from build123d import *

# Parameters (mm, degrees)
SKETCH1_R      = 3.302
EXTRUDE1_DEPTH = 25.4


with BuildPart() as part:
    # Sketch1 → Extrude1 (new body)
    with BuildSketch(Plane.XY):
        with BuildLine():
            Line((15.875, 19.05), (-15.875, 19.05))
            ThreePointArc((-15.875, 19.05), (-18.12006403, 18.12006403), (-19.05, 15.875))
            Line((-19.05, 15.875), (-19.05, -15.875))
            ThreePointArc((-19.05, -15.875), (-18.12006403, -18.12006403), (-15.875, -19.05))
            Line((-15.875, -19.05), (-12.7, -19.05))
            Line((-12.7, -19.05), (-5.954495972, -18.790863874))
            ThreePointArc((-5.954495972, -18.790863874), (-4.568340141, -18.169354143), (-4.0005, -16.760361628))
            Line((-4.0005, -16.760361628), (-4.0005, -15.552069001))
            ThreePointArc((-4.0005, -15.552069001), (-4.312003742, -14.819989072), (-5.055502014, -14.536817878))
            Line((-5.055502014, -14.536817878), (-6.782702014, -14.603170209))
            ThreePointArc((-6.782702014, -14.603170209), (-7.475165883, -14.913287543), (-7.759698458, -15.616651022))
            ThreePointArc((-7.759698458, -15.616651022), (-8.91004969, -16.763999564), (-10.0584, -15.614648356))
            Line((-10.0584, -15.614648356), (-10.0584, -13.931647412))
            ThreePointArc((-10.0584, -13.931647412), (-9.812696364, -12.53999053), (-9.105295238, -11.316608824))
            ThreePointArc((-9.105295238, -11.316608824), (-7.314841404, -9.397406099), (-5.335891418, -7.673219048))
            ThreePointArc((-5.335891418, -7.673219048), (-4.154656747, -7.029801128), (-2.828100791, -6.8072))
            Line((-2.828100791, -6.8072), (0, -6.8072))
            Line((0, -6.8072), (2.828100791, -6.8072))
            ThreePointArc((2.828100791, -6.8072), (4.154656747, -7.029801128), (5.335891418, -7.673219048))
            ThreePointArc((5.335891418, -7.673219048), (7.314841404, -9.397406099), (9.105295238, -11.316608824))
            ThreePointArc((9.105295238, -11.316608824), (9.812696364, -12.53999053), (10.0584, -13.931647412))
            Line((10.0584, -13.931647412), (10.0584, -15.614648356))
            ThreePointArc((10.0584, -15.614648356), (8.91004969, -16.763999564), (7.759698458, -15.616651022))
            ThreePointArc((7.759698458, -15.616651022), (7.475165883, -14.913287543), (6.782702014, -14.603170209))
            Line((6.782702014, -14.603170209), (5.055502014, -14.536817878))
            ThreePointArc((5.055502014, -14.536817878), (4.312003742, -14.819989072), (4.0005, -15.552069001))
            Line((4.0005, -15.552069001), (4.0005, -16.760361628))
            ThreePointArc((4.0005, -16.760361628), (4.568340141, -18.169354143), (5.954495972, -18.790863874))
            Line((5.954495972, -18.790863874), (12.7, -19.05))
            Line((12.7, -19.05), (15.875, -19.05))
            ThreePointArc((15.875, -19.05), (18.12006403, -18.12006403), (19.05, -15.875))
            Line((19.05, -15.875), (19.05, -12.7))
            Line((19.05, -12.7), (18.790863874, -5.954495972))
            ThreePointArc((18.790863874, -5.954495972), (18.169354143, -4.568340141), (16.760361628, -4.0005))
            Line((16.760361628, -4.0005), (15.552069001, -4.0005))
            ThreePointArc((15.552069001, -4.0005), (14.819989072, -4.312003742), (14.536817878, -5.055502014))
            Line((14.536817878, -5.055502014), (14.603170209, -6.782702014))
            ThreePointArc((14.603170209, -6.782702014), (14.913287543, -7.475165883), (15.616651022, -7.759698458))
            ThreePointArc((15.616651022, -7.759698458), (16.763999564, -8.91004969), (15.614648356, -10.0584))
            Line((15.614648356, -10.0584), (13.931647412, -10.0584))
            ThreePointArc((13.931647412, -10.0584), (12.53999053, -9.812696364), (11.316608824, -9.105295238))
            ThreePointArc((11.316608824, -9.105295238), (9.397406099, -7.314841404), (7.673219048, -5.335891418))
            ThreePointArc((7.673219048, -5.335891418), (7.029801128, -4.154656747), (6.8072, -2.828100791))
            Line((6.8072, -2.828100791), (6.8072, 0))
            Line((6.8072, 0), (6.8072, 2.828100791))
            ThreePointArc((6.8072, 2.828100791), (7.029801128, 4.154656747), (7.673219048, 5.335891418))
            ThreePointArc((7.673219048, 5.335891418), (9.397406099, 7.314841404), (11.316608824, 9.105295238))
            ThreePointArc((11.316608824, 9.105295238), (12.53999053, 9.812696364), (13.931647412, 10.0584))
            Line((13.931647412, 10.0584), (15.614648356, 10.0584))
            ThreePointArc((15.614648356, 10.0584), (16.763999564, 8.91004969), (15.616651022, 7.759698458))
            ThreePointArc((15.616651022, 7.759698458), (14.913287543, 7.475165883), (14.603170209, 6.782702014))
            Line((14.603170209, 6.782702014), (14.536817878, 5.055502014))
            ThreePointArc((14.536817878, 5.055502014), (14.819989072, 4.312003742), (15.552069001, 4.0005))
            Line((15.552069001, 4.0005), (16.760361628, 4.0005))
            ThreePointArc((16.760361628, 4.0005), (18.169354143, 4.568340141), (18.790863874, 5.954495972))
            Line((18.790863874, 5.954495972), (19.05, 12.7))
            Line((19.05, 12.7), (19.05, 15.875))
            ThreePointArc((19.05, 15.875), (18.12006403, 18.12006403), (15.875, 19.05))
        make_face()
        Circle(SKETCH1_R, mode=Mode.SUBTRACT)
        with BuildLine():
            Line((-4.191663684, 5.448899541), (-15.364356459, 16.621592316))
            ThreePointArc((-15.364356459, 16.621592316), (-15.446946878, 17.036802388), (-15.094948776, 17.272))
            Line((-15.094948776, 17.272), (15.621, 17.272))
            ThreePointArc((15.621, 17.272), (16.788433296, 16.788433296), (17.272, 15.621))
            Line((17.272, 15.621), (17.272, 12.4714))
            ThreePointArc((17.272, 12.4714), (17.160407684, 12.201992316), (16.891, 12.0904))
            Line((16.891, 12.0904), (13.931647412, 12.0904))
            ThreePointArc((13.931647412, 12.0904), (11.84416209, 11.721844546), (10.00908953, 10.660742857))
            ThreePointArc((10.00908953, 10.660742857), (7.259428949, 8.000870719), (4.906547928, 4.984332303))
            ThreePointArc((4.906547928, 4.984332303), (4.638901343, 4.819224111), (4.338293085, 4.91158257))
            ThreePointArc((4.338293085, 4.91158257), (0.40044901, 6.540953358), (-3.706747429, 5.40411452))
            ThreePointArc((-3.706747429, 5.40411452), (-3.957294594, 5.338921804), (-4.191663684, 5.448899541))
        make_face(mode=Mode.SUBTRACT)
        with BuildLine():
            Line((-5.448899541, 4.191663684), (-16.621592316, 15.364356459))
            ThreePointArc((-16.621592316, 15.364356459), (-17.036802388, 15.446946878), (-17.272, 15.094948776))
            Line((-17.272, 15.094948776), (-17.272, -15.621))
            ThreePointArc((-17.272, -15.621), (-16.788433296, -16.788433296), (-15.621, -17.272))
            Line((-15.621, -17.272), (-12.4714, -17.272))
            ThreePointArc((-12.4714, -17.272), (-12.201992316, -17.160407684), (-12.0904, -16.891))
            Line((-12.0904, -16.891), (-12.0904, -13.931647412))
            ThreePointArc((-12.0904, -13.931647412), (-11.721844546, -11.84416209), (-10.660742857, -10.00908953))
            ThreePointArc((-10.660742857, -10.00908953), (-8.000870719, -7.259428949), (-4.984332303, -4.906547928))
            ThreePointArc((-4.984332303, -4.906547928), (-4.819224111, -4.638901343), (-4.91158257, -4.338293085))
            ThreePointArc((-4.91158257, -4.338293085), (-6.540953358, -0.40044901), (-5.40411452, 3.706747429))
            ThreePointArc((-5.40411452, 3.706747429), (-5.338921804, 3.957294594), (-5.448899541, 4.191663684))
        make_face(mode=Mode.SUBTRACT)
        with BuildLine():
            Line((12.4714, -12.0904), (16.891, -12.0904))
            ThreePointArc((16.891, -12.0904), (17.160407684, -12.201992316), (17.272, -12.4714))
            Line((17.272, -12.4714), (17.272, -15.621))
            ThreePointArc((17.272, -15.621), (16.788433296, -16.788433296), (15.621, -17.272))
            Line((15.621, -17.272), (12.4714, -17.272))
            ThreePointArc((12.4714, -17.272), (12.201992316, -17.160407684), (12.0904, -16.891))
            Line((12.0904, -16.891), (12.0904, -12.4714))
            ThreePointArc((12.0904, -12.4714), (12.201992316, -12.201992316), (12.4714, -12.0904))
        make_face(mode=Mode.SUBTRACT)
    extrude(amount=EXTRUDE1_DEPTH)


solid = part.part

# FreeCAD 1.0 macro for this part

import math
import FreeCAD as App
import Part
import Sketcher
from FreeCAD import Vector
Q = App.Units.Quantity

doc = App.newDocument("Part")
params = doc.addObject("Spreadsheet::Sheet", "Params")
for row, (alias, value) in enumerate([
    ("sketch1_radius", "1 in"),
    ("sketch1_diameter", "0.26 in"),
    ("sketch1_radius2", "0.08 in"),
    ("sketch1_radius3", "0.04 in"),
    ("sketch1_radius4", "0.16 in"),
    ("pad1_length", "1 in"),
], start=1):
    params.set(f"A{row}", alias)
    params.set(f"B{row}", "=" + value)
    params.setAlias(f"B{row}", alias)

body = doc.addObject("PartDesign::Body", "Body")

sketch1 = body.newObject("Sketcher::SketchObject", "Sketch")
sketch1.AttachmentSupport = (doc.getObject("XY_Plane"), [""])
sketch1.MapMode = "FlatFace"
sketch1.addGeometry([
    Part.LineSegment(Vector(15.88, 19.05, 0), Vector(-15.88, 19.05, 0)),
    Part.ArcOfCircle(Part.Circle(Vector(-15.87, 15.87, 0), Vector(0, 0, 1), 3.18), math.radians(90), math.radians(180)),
    Part.LineSegment(Vector(-19.05, 15.88, 0), Vector(-19.05, -15.88, 0)),
    Part.ArcOfCircle(Part.Circle(Vector(-15.87, -15.87, 0), Vector(0, 0, 1), 3.18), math.radians(-180), math.radians(-90)),
    Part.LineSegment(Vector(-15.88, -19.05, 0), Vector(-12.7, -19.05, 0)),
    Part.LineSegment(Vector(-12.7, -19.05, 0), Vector(-5.95, -18.79, 0)),
    Part.ArcOfCircle(Part.Circle(Vector(-6.03, -16.76, 0), Vector(0, 0, 1), 2.03), math.radians(-88), math.radians(0)),
    Part.LineSegment(Vector(-4, -16.76, 0), Vector(-4, -15.55, 0)),
    Part.ArcOfCircle(Part.Circle(Vector(-5.02, -15.55, 0), Vector(0, 0, 1), 1.02), math.radians(0), math.radians(92)),
    Part.LineSegment(Vector(-5.06, -14.54, 0), Vector(-6.78, -14.6, 0)),
    Part.ArcOfCircle(Part.Circle(Vector(-6.74, -15.62, 0), Vector(0, 0, 1), 1.02), math.radians(92), math.radians(180)),
    Part.ArcOfCircle(Part.Circle(Vector(-8.91, -15.61, 0), Vector(0, 0, 1), 1.15), math.radians(180), math.radians(360)),
    Part.LineSegment(Vector(-10.06, -15.61, 0), Vector(-10.06, -13.93, 0)),
    Part.ArcOfCircle(Part.Circle(Vector(-5.99, -13.93, 0), Vector(0, 0, 1), 4.06), math.radians(140), math.radians(180)),
    Part.ArcOfCircle(Part.Circle(Vector(10.34, -27.66, 0), Vector(0, 0, 1), 25.4), math.radians(128.1), math.radians(139.95)),
    Part.ArcOfCircle(Part.Circle(Vector(-2.83, -10.87, 0), Vector(0, 0, 1), 4.06), math.radians(90), math.radians(128)),
    Part.LineSegment(Vector(-2.83, -6.81, 0), Vector(2.83, -6.81, 0)),
    Part.ArcOfCircle(Part.Circle(Vector(2.83, -10.87, 0), Vector(0, 0, 1), 4.06), math.radians(52), math.radians(90)),
    Part.ArcOfCircle(Part.Circle(Vector(-10.34, -27.66, 0), Vector(0, 0, 1), 25.4), math.radians(40.05), math.radians(51.9)),
    Part.ArcOfCircle(Part.Circle(Vector(5.99, -13.93, 0), Vector(0, 0, 1), 4.06), math.radians(0), math.radians(40)),
    Part.LineSegment(Vector(10.06, -13.93, 0), Vector(10.06, -15.61, 0)),
    Part.ArcOfCircle(Part.Circle(Vector(8.91, -15.61, 0), Vector(0, 0, 1), 1.15), math.radians(-180), math.radians(0)),
    Part.ArcOfCircle(Part.Circle(Vector(6.74, -15.62, 0), Vector(0, 0, 1), 1.02), math.radians(0), math.radians(88)),
    Part.LineSegment(Vector(6.78, -14.6, 0), Vector(5.06, -14.54, 0)),
    Part.ArcOfCircle(Part.Circle(Vector(5.02, -15.55, 0), Vector(0, 0, 1), 1.02), math.radians(88), math.radians(180)),
    Part.LineSegment(Vector(4, -15.55, 0), Vector(4, -16.76, 0)),
    Part.ArcOfCircle(Part.Circle(Vector(6.03, -16.76, 0), Vector(0, 0, 1), 2.03), math.radians(180), math.radians(268)),
    Part.LineSegment(Vector(5.95, -18.79, 0), Vector(12.7, -19.05, 0)),
    Part.LineSegment(Vector(12.7, -19.05, 0), Vector(15.88, -19.05, 0)),
    Part.ArcOfCircle(Part.Circle(Vector(15.87, -15.87, 0), Vector(0, 0, 1), 3.18), math.radians(-90), math.radians(0)),
    Part.LineSegment(Vector(19.05, -15.88, 0), Vector(19.05, -12.7, 0)),
    Part.LineSegment(Vector(19.05, -12.7, 0), Vector(18.79, -5.95, 0)),
    Part.ArcOfCircle(Part.Circle(Vector(16.76, -6.03, 0), Vector(0, 0, 1), 2.03), math.radians(2), math.radians(90)),
    Part.LineSegment(Vector(16.76, -4, 0), Vector(15.55, -4, 0)),
    Part.ArcOfCircle(Part.Circle(Vector(15.55, -5.02, 0), Vector(0, 0, 1), 1.02), math.radians(90), math.radians(182)),
    Part.LineSegment(Vector(14.54, -5.06, 0), Vector(14.6, -6.78, 0)),
    Part.ArcOfCircle(Part.Circle(Vector(15.62, -6.74, 0), Vector(0, 0, 1), 1.02), math.radians(-178), math.radians(-90)),
    Part.ArcOfCircle(Part.Circle(Vector(15.61, -8.91, 0), Vector(0, 0, 1), 1.15), math.radians(-90), math.radians(90)),
    Part.LineSegment(Vector(15.61, -10.06, 0), Vector(13.93, -10.06, 0)),
    Part.ArcOfCircle(Part.Circle(Vector(13.93, -5.99, 0), Vector(0, 0, 1), 4.06), math.radians(-130), math.radians(-90)),
    Part.ArcOfCircle(Part.Circle(Vector(27.66, 10.34, 0), Vector(0, 0, 1), 25.4), math.radians(-141.9), math.radians(-130.05)),
    Part.ArcOfCircle(Part.Circle(Vector(10.87, -2.83, 0), Vector(0, 0, 1), 4.06), math.radians(-180), math.radians(-142)),
    Part.LineSegment(Vector(6.81, -2.83, 0), Vector(6.81, 2.83, 0)),
    Part.ArcOfCircle(Part.Circle(Vector(10.87, 2.83, 0), Vector(0, 0, 1), 4.06), math.radians(142), math.radians(180)),
    Part.ArcOfCircle(Part.Circle(Vector(27.66, -10.34, 0), Vector(0, 0, 1), 25.4), math.radians(130.05), math.radians(141.9)),
    Part.ArcOfCircle(Part.Circle(Vector(13.93, 5.99, 0), Vector(0, 0, 1), 4.06), math.radians(90), math.radians(130)),
    Part.LineSegment(Vector(13.93, 10.06, 0), Vector(15.61, 10.06, 0)),
    Part.ArcOfCircle(Part.Circle(Vector(15.61, 8.91, 0), Vector(0, 0, 1), 1.15), math.radians(-90), math.radians(90)),
    Part.ArcOfCircle(Part.Circle(Vector(15.62, 6.74, 0), Vector(0, 0, 1), 1.02), math.radians(90), math.radians(178)),
    Part.LineSegment(Vector(14.6, 6.78, 0), Vector(14.54, 5.06, 0)),
    Part.ArcOfCircle(Part.Circle(Vector(15.55, 5.02, 0), Vector(0, 0, 1), 1.02), math.radians(178), math.radians(270)),
    Part.LineSegment(Vector(15.55, 4, 0), Vector(16.76, 4, 0)),
    Part.ArcOfCircle(Part.Circle(Vector(16.76, 6.03, 0), Vector(0, 0, 1), 2.03), math.radians(-90), math.radians(-2)),
    Part.LineSegment(Vector(18.79, 5.95, 0), Vector(19.05, 12.7, 0)),
    Part.LineSegment(Vector(19.05, 12.7, 0), Vector(19.05, 15.88, 0)),
    Part.ArcOfCircle(Part.Circle(Vector(15.87, 15.87, 0), Vector(0, 0, 1), 3.18), math.radians(0), math.radians(90)),
    Part.LineSegment(Vector(-16.62, 15.36, 0), Vector(-5.45, 4.19, 0)),
    Part.ArcOfCircle(Part.Circle(Vector(-5.72, 3.92, 0), Vector(0, 0, 1), 0.38), math.radians(-34), math.radians(45)),
    Part.ArcOfCircle(Part.Circle(Vector(0, 0, 0), Vector(0, 0, 1), 6.55), math.radians(146), math.radians(221)),
    Part.ArcOfCircle(Part.Circle(Vector(-5.2, -4.59, 0), Vector(0, 0, 1), 0.38), math.radians(-56), math.radians(41)),
    Part.ArcOfCircle(Part.Circle(Vector(10.34, -27.66, 0), Vector(0, 0, 1), 27.43), math.radians(123.96), math.radians(139.95)),
    Part.ArcOfCircle(Part.Circle(Vector(-5.99, -13.93, 0), Vector(0, 0, 1), 6.1), math.radians(140), math.radians(180)),
    Part.LineSegment(Vector(-12.09, -13.93, 0), Vector(-12.09, -16.89, 0)),
    Part.ArcOfCircle(Part.Circle(Vector(-12.47, -16.89, 0), Vector(0, 0, 1), 0.38), math.radians(-90), math.radians(0)),
    Part.LineSegment(Vector(-12.47, -17.27, 0), Vector(-15.62, -17.27, 0)),
    Part.ArcOfCircle(Part.Circle(Vector(-15.62, -15.62, 0), Vector(0, 0, 1), 1.65), math.radians(180), math.radians(270)),
    Part.LineSegment(Vector(-17.27, -15.62, 0), Vector(-17.27, 15.09, 0)),
    Part.ArcOfCircle(Part.Circle(Vector(-16.89, 15.09, 0), Vector(0, 0, 1), 0.38), math.radians(45), math.radians(180)),
    Part.ArcOfCircle(Part.Circle(Vector(12.47, -12.47, 0), Vector(0, 0, 1), 0.38), math.radians(90), math.radians(180)),
    Part.LineSegment(Vector(12.47, -12.09, 0), Vector(16.89, -12.09, 0)),
    Part.ArcOfCircle(Part.Circle(Vector(16.89, -12.47, 0), Vector(0, 0, 1), 0.38), math.radians(0), math.radians(90)),
    Part.LineSegment(Vector(17.27, -12.47, 0), Vector(17.27, -15.62, 0)),
    Part.ArcOfCircle(Part.Circle(Vector(15.62, -15.62, 0), Vector(0, 0, 1), 1.65), math.radians(-90), math.radians(0)),
    Part.LineSegment(Vector(15.62, -17.27, 0), Vector(12.47, -17.27, 0)),
    Part.ArcOfCircle(Part.Circle(Vector(12.47, -16.89, 0), Vector(0, 0, 1), 0.38), math.radians(180), math.radians(270)),
    Part.LineSegment(Vector(12.09, -16.89, 0), Vector(12.09, -12.47, 0)),
    Part.Circle(Vector(0, 0, 0), Vector(0, 0, 1), 3.3),
    Part.ArcOfCircle(Part.Circle(Vector(-3.92, 5.72, 0), Vector(0, 0, 1), 0.38), math.radians(-135), math.radians(-56)),
    Part.LineSegment(Vector(-4.19, 5.45, 0), Vector(-15.36, 16.62, 0)),
    Part.ArcOfCircle(Part.Circle(Vector(-15.09, 16.89, 0), Vector(0, 0, 1), 0.38), math.radians(90), math.radians(225)),
    Part.LineSegment(Vector(-15.09, 17.27, 0), Vector(15.62, 17.27, 0)),
    Part.ArcOfCircle(Part.Circle(Vector(15.62, 15.62, 0), Vector(0, 0, 1), 1.65), math.radians(0), math.radians(90)),
    Part.LineSegment(Vector(17.27, 15.62, 0), Vector(17.27, 12.47, 0)),
    Part.ArcOfCircle(Part.Circle(Vector(16.89, 12.47, 0), Vector(0, 0, 1), 0.38), math.radians(-90), math.radians(0)),
    Part.LineSegment(Vector(16.89, 12.09, 0), Vector(13.93, 12.09, 0)),
    Part.ArcOfCircle(Part.Circle(Vector(13.93, 5.99, 0), Vector(0, 0, 1), 6.1), math.radians(90), math.radians(130)),
    Part.ArcOfCircle(Part.Circle(Vector(27.66, -10.34, 0), Vector(0, 0, 1), 27.43), math.radians(130.05), math.radians(146.04)),
    Part.ArcOfCircle(Part.Circle(Vector(4.59, 5.2, 0), Vector(0, 0, 1), 0.38), math.radians(-131), math.radians(-34)),
    Part.ArcOfCircle(Part.Circle(Vector(0, 0, 0), Vector(0, 0, 1), 6.55), math.radians(49), math.radians(124)),
], False)
sketch1.addConstraint([
    Sketcher.Constraint("Tangent", 0, 2, 1, 1),
    Sketcher.Constraint("Tangent", 1, 2, 2, 1),
    Sketcher.Constraint("Tangent", 2, 2, 3, 1),
    Sketcher.Constraint("Tangent", 3, 2, 4, 1),
    Sketcher.Constraint("Coincident", 4, 2, 5, 1),
    Sketcher.Constraint("Tangent", 5, 2, 6, 1),
    Sketcher.Constraint("Tangent", 6, 2, 7, 1),
    Sketcher.Constraint("Tangent", 7, 2, 8, 1),
    Sketcher.Constraint("Tangent", 8, 2, 9, 1),
    Sketcher.Constraint("Tangent", 9, 2, 10, 1),
    Sketcher.Constraint("Tangent", 10, 2, 11, 2),
    Sketcher.Constraint("Tangent", 11, 1, 12, 1),
    Sketcher.Constraint("Tangent", 12, 2, 13, 2),
    Sketcher.Constraint("Tangent", 13, 1, 14, 2),
    Sketcher.Constraint("Tangent", 14, 1, 15, 2),
    Sketcher.Constraint("Tangent", 15, 1, 16, 1),
    Sketcher.Constraint("Tangent", 16, 2, 17, 2),
    Sketcher.Constraint("Tangent", 17, 1, 18, 2),
    Sketcher.Constraint("Tangent", 18, 1, 19, 2),
    Sketcher.Constraint("Tangent", 19, 1, 20, 1),
    Sketcher.Constraint("Tangent", 20, 2, 21, 2),
    Sketcher.Constraint("Tangent", 21, 1, 22, 1),
    Sketcher.Constraint("Tangent", 22, 2, 23, 1),
    Sketcher.Constraint("Tangent", 23, 2, 24, 1),
    Sketcher.Constraint("Tangent", 24, 2, 25, 1),
    Sketcher.Constraint("Tangent", 25, 2, 26, 1),
    Sketcher.Constraint("Tangent", 26, 2, 27, 1),
    Sketcher.Constraint("Coincident", 27, 2, 28, 1),
    Sketcher.Constraint("Tangent", 28, 2, 29, 1),
    Sketcher.Constraint("Tangent", 29, 2, 30, 1),
    Sketcher.Constraint("Coincident", 30, 2, 31, 1),
    Sketcher.Constraint("Tangent", 31, 2, 32, 1),
    Sketcher.Constraint("Tangent", 32, 2, 33, 1),
    Sketcher.Constraint("Tangent", 33, 2, 34, 1),
    Sketcher.Constraint("Tangent", 34, 2, 35, 1),
    Sketcher.Constraint("Tangent", 35, 2, 36, 1),
    Sketcher.Constraint("Tangent", 36, 2, 37, 2),
    Sketcher.Constraint("Tangent", 37, 1, 38, 1),
    Sketcher.Constraint("Tangent", 38, 2, 39, 2),
    Sketcher.Constraint("Tangent", 39, 1, 40, 2),
    Sketcher.Constraint("Tangent", 40, 1, 41, 2),
    Sketcher.Constraint("Tangent", 41, 1, 42, 1),
    Sketcher.Constraint("Tangent", 42, 2, 43, 2),
    Sketcher.Constraint("Tangent", 43, 1, 44, 2),
    Sketcher.Constraint("Tangent", 44, 1, 45, 2),
    Sketcher.Constraint("Tangent", 45, 1, 46, 1),
    Sketcher.Constraint("Tangent", 46, 2, 47, 2),
    Sketcher.Constraint("Tangent", 47, 1, 48, 1),
    Sketcher.Constraint("Tangent", 48, 2, 49, 1),
    Sketcher.Constraint("Tangent", 49, 2, 50, 1),
    Sketcher.Constraint("Tangent", 50, 2, 51, 1),
    Sketcher.Constraint("Tangent", 51, 2, 52, 1),
    Sketcher.Constraint("Tangent", 52, 2, 53, 1),
    Sketcher.Constraint("Coincident", 53, 2, 54, 1),
    Sketcher.Constraint("Tangent", 54, 2, 55, 1),
    Sketcher.Constraint("Tangent", 55, 2, 0, 1),
    Sketcher.Constraint("Tangent", 56, 2, 57, 2),
    Sketcher.Constraint("Tangent", 57, 1, 58, 1),
    Sketcher.Constraint("Tangent", 58, 2, 59, 2),
    Sketcher.Constraint("Tangent", 59, 1, 60, 1),
    Sketcher.Constraint("Tangent", 60, 2, 61, 1),
    Sketcher.Constraint("Tangent", 61, 2, 62, 1),
    Sketcher.Constraint("Tangent", 62, 2, 63, 2),
    Sketcher.Constraint("Tangent", 63, 1, 64, 1),
    Sketcher.Constraint("Tangent", 64, 2, 65, 2),
    Sketcher.Constraint("Tangent", 65, 1, 66, 1),
    Sketcher.Constraint("Tangent", 66, 2, 67, 2),
    Sketcher.Constraint("Tangent", 67, 1, 56, 1),
    Sketcher.Constraint("Tangent", 68, 1, 69, 1),
    Sketcher.Constraint("Tangent", 69, 2, 70, 2),
    Sketcher.Constraint("Tangent", 70, 1, 71, 1),
    Sketcher.Constraint("Tangent", 71, 2, 72, 2),
    Sketcher.Constraint("Tangent", 72, 1, 73, 1),
    Sketcher.Constraint("Tangent", 73, 2, 74, 2),
    Sketcher.Constraint("Tangent", 74, 1, 75, 1),
    Sketcher.Constraint("Tangent", 75, 2, 68, 2),
    Sketcher.Constraint("Tangent", 77, 1, 78, 1),
    Sketcher.Constraint("Tangent", 78, 2, 79, 2),
    Sketcher.Constraint("Tangent", 79, 1, 80, 1),
    Sketcher.Constraint("Tangent", 80, 2, 81, 2),
    Sketcher.Constraint("Tangent", 81, 1, 82, 1),
    Sketcher.Constraint("Tangent", 82, 2, 83, 2),
    Sketcher.Constraint("Tangent", 83, 1, 84, 1),
    Sketcher.Constraint("Tangent", 84, 2, 85, 1),
    Sketcher.Constraint("Tangent", 85, 2, 86, 1),
    Sketcher.Constraint("Tangent", 86, 2, 87, 2),
    Sketcher.Constraint("Tangent", 87, 1, 88, 1),
    Sketcher.Constraint("Tangent", 88, 2, 77, 2),
    Sketcher.Constraint("Horizontal", 0),
    Sketcher.Constraint("Vertical", 2),
    Sketcher.Constraint("Horizontal", 4),
    Sketcher.Constraint("Vertical", 7),
    Sketcher.Constraint("Vertical", 12),
    Sketcher.Constraint("Horizontal", 16),
    Sketcher.Constraint("Vertical", 20),
    Sketcher.Constraint("Vertical", 25),
    Sketcher.Constraint("Horizontal", 28),
    Sketcher.Constraint("Vertical", 30),
    Sketcher.Constraint("Horizontal", 33),
    Sketcher.Constraint("Horizontal", 38),
    Sketcher.Constraint("Vertical", 42),
    Sketcher.Constraint("Horizontal", 46),
    Sketcher.Constraint("Horizontal", 51),
    Sketcher.Constraint("Vertical", 54),
    Sketcher.Constraint("Vertical", 62),
    Sketcher.Constraint("Horizontal", 64),
    Sketcher.Constraint("Vertical", 66),
    Sketcher.Constraint("Horizontal", 69),
    Sketcher.Constraint("Vertical", 71),
    Sketcher.Constraint("Horizontal", 73),
    Sketcher.Constraint("Vertical", 75),
    Sketcher.Constraint("Horizontal", 80),
    Sketcher.Constraint("Vertical", 82),
    Sketcher.Constraint("Horizontal", 84),
    Sketcher.Constraint("Coincident", 58, 3, -1, 1),
    Sketcher.Constraint("Coincident", 76, 3, -1, 1),
    Sketcher.Constraint("Coincident", 88, 3, -1, 1),
    Sketcher.Constraint("Coincident", 60, 3, 14, 3),
    Sketcher.Constraint("Coincident", 61, 3, 13, 3),
    Sketcher.Constraint("Coincident", 85, 3, 45, 3),
    Sketcher.Constraint("Coincident", 86, 3, 44, 3),
    Sketcher.Constraint("Equal", 1, 3),
    Sketcher.Constraint("Equal", 8, 10),
    Sketcher.Constraint("Equal", 13, 15),
    Sketcher.Constraint("Equal", 15, 17),
    Sketcher.Constraint("Equal", 14, 18),
    Sketcher.Constraint("Equal", 17, 19),
    Sketcher.Constraint("Equal", 11, 21),
    Sketcher.Constraint("Equal", 10, 22),
    Sketcher.Constraint("Equal", 22, 24),
    Sketcher.Constraint("Equal", 6, 26),
    Sketcher.Constraint("Equal", 3, 29),
    Sketcher.Constraint("Equal", 26, 32),
    Sketcher.Constraint("Equal", 24, 34),
    Sketcher.Constraint("Equal", 34, 36),
    Sketcher.Constraint("Equal", 21, 37),
    Sketcher.Constraint("Equal", 19, 39),
    Sketcher.Constraint("Equal", 18, 40),
    Sketcher.Constraint("Equal", 39, 41),
    Sketcher.Constraint("Equal", 41, 43),
    Sketcher.Constraint("Equal", 40, 44),
    Sketcher.Constraint("Equal", 43, 45),
    Sketcher.Constraint("Equal", 37, 47),
    Sketcher.Constraint("Equal", 36, 48),
    Sketcher.Constraint("Equal", 48, 50),
    Sketcher.Constraint("Equal", 32, 52),
    Sketcher.Constraint("Equal", 29, 55),
    Sketcher.Constraint("Equal", 57, 59),
    Sketcher.Constraint("Equal", 59, 63),
    Sketcher.Constraint("Equal", 63, 67),
    Sketcher.Constraint("Equal", 67, 68),
    Sketcher.Constraint("Equal", 68, 70),
    Sketcher.Constraint("Equal", 65, 72),
    Sketcher.Constraint("Equal", 70, 74),
    Sketcher.Constraint("Equal", 74, 77),
    Sketcher.Constraint("Equal", 77, 79),
    Sketcher.Constraint("Equal", 72, 81),
    Sketcher.Constraint("Equal", 79, 83),
    Sketcher.Constraint("Equal", 61, 85),
    Sketcher.Constraint("Equal", 83, 87),
    Sketcher.Constraint("Equal", 58, 88),
    Sketcher.Constraint("Symmetric", 1, 3, 29, 3, -1, 1),
    Sketcher.Constraint("Symmetric", 3, 3, 55, 3, -1, 1),
    Sketcher.Constraint("Symmetric", 65, 3, 81, 3, -1, 1),
    Sketcher.Constraint("Symmetric", 14, 3, 18, 3, -2),
    Sketcher.Constraint("Symmetric", 11, 3, 21, 3, -2),
    Sketcher.Constraint("Symmetric", 8, 3, 24, 3, -2),
    Sketcher.Constraint("Symmetric", 65, 3, 72, 3, -2),
    Sketcher.Constraint("Symmetric", 5, 2, 26, 2, -2),
    Sketcher.Constraint("Symmetric", 40, 3, 44, 3, -1),
    Sketcher.Constraint("Symmetric", 37, 3, 47, 3, -1),
    Sketcher.Constraint("Symmetric", 34, 3, 50, 3, -1),
    Sketcher.Constraint("Symmetric", 31, 2, 52, 2, -1),
    Sketcher.Constraint("Parallel", 5, 9),
    Sketcher.Constraint("Parallel", 23, 27),
    Sketcher.Constraint("Perpendicular", 9, 31),
    Sketcher.Constraint("Parallel", 31, 35),
    Sketcher.Constraint("Perpendicular", 27, 49),
    Sketcher.Constraint("Parallel", 56, 78),
    Sketcher.Constraint("Equal", 64, 73),
    Sketcher.Constraint("Equal", 0, 2),
    Sketcher.Constraint("Equal", 51, 7),
    Sketcher.Constraint("Equal", 46, 12),
    Sketcher.Constraint("Equal", 28, 30),
    Sketcher.Constraint("Equal", 16, 42),
    Sketcher.Constraint("Equal", 84, 62),
    Sketcher.Constraint("Equal", 80, 66),
    Sketcher.Constraint("Equal", 73, 71),
    Sketcher.Constraint("Equal", 71, 82),
    Sketcher.Constraint("Equal", 27, 31),
    Sketcher.Constraint("Equal", 23, 35),
    Sketcher.Constraint("Equal", 56, 78),
    Sketcher.Constraint("Radius", 14, Q("1 in")),
    Sketcher.Constraint("Diameter", 76, Q("0.26 in")),
    Sketcher.Constraint("Radius", 6, Q("0.08 in")),
    Sketcher.Constraint("Radius", 8, Q("0.04 in")),
    Sketcher.Constraint("Radius", 13, Q("0.16 in")),
    Sketcher.Constraint("Radius", 60, Q("1.08 in")),
    Sketcher.Constraint("Radius", 1, Q("0.125 in")),
    Sketcher.Constraint("Radius", 57, Q("0.015 in")),
    Sketcher.Constraint("Radius", 58, Q("0.258 in")),
    Sketcher.Constraint("Radius", 65, Q("0.065 in")),
    Sketcher.Constraint("DistanceX", 0, 2, 0, 1, Q("1.25 in")),
    Sketcher.Constraint("DistanceX", 4, 2, -1, 1, Q("0.5 in")),
    Sketcher.Constraint("Angle", 5, Q("2.2 deg")),
    Sketcher.Constraint("DistanceX", 64, 2, 64, 1, Q("0.124 in")),
    Sketcher.Constraint("DistanceY", 63, 1, -1, 1, Q("0.68 in")),
    Sketcher.Constraint("DistanceX", -1, 1, 14, 3, Q("0.407 in")),
    Sketcher.Constraint("DistanceY", 14, 3, -1, 1, Q("1.089 in")),
    Sketcher.Constraint("DistanceY", 15, 3, -1, 1, Q("0.428 in")),
    Sketcher.Constraint("DistanceX", -1, 1, 40, 3, Q("1.089 in")),
    Sketcher.Constraint("Radius", 11, Q("1.149352 mm")),
    Sketcher.Constraint("DistanceX", 38, 2, 38, 1, Q("1.683001 mm")),
    Sketcher.Constraint("DistanceX", 6, 3, -1, 1, Q("0.2375 in")),
    Sketcher.Constraint("DistanceX", 80, 1, 80, 2, Q("30.715949 mm")),
    Sketcher.Constraint("DistanceX", 33, 2, 33, 1, Q("1.208293 mm")),
])
sketch1.setExpression("Constraints[192]", "Params.sketch1_radius")
sketch1.setExpression("Constraints[193]", "Params.sketch1_diameter")
sketch1.setExpression("Constraints[194]", "Params.sketch1_radius2")
sketch1.setExpression("Constraints[195]", "Params.sketch1_radius3")
sketch1.setExpression("Constraints[196]", "Params.sketch1_radius4")
pad1 = body.newObject("PartDesign::Pad", "Pad")
pad1.Profile = sketch1
pad1.setExpression("Length", "Params.pad1_length")

doc.recompute()
